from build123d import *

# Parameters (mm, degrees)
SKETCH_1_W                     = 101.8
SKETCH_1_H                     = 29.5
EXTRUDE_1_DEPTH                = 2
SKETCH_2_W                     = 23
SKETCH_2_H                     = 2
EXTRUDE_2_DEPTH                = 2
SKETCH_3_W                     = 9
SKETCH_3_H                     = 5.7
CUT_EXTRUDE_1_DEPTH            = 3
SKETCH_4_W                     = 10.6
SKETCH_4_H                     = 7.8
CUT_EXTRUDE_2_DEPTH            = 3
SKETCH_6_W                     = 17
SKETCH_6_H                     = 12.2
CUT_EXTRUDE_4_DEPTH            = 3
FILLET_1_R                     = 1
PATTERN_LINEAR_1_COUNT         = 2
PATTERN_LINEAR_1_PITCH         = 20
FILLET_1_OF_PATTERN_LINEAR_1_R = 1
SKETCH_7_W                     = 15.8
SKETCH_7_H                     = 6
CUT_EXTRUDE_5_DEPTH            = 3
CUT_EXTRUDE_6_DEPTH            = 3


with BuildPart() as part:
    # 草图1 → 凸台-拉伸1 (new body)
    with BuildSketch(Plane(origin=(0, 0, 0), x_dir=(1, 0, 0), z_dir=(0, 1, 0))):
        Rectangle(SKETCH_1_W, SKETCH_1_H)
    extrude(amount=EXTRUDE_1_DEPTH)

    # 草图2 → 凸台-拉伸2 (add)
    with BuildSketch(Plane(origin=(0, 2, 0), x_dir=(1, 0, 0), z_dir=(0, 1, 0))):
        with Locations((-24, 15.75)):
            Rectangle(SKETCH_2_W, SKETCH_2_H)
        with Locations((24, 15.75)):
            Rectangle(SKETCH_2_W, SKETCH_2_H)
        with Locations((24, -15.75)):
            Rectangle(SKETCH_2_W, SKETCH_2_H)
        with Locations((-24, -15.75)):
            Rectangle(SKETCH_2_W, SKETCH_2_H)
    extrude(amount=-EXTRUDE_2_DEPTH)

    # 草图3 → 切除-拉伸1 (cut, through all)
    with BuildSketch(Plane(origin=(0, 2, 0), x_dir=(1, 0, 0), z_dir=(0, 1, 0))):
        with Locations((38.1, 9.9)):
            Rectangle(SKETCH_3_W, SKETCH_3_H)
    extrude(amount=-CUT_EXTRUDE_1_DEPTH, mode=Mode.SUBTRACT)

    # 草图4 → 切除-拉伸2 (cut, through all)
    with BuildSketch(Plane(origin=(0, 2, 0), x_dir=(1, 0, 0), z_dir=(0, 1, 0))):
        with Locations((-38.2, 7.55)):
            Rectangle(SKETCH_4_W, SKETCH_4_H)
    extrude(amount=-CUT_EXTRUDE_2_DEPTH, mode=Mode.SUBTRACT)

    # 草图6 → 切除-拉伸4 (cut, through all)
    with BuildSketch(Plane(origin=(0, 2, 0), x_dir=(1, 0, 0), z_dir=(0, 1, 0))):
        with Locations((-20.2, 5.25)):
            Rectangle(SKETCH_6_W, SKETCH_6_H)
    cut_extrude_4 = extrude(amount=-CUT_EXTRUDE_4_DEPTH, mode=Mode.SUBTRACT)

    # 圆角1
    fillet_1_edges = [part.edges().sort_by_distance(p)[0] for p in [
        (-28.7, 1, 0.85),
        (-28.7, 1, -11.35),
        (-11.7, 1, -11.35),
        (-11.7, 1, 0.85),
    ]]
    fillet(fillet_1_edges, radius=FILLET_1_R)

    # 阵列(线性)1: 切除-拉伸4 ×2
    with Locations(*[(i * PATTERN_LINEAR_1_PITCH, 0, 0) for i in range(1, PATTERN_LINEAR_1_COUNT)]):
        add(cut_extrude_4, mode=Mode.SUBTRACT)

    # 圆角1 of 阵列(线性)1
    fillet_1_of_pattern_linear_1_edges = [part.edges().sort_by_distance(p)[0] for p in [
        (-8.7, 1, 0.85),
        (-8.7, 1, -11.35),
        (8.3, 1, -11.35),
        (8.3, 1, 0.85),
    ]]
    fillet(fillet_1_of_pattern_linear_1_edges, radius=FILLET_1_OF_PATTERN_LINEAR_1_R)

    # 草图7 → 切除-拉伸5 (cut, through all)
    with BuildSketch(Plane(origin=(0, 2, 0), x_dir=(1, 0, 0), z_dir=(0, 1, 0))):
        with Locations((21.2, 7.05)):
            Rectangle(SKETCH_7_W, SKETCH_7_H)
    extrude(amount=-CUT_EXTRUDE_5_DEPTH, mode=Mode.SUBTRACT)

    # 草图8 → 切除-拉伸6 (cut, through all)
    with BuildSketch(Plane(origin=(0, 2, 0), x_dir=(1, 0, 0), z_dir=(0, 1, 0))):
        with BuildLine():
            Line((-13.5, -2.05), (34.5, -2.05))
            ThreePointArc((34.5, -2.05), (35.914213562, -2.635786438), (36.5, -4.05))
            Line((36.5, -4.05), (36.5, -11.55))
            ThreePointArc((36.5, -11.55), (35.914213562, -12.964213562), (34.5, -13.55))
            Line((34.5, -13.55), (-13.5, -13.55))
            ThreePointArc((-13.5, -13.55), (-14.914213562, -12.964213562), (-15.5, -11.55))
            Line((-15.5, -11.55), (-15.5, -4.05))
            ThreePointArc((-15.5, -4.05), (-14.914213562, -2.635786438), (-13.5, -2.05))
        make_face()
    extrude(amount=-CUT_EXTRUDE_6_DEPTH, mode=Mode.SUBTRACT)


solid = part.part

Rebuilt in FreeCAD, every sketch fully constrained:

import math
import FreeCAD as App
import Part
import Sketcher

V = App.Vector
Q = App.Units.Quantity


def edges_at(feature, points):
    """Names of the edges that pass closest to the given points."""
    edges = feature.Shape.Edges
    near = lambda p: min(range(len(edges)), key=lambda i: edges[i].distToShape(Part.Vertex(*p))[0])
    return sorted({f"Edge{near(p) + 1}" for p in points})


def add_polygon(sketch, points):
    """Adds a closed chain of lines whose ends are joined by coincident constraints."""
    first, n = sketch.GeometryCount, len(points)
    for a, b in zip(points, points[1:] + points[:1]):
        sketch.addGeometry(Part.LineSegment(App.Vector(*a, 0), App.Vector(*b, 0)), False)
    for i in range(n):
        sketch.addConstraint(Sketcher.Constraint("Coincident", first + i, 2, first + (i + 1) % n, 1))

doc = App.newDocument("Part")
params = doc.addObject("Spreadsheet::Sheet", "Params")
for row, (alias, value) in enumerate([
    ("sketch1_width", "101.8 mm"),
    ("sketch1_height", "29.5 mm"),
    ("pad1_length", "2 mm"),
    ("sketch2_width", "23 mm"),
    ("sketch2_height", "2 mm"),
    ("pad2_length", "2 mm"),
    ("sketch3_width", "9 mm"),
    ("sketch3_height", "5.7 mm"),
    ("sketch4_width", "10.6 mm"),
    ("sketch4_height", "7.8 mm"),
    ("sketch5_width", "17 mm"),
    ("sketch5_height", "12.2 mm"),
    ("fillet_radius", "1 mm"),
    ("linearpattern_pitch", "20 mm"),
    ("fillet2_radius", "1 mm"),
    ("sketch6_height", "6 mm"),
    ("sketch6_width", "15.8 mm"),
    ("sketch7_radius", "2 mm"),
    ("sketch7_width", "48 mm"),
    ("sketch7_height", "7.5 mm"),
], start=1):
    params.set(f"A{row}", alias)
    params.set(f"B{row}", "=" + value)
    params.setAlias(f"B{row}", alias)

body = doc.addObject("PartDesign::Body", "Body")

sketch1 = body.newObject("Sketcher::SketchObject", "Sketch")
sketch1.AttachmentSupport = (doc.getObject("XZ_Plane"), [""])
sketch1.MapMode = "FlatFace"
add_polygon(sketch1, [(-51, -15), (-51, 15), (51, 15), (51, -15)])
sketch1.addConstraint([
    Sketcher.Constraint("Vertical", 0),
    Sketcher.Constraint("Horizontal", 1),
    Sketcher.Constraint("Vertical", 2),
    Sketcher.Constraint("Horizontal", 3),
    Sketcher.Constraint("Symmetric", 0, 2, 2, 2, -1, 1),
    Sketcher.Constraint("DistanceX", 1, 1, 1, 2, Q("101.8 mm")),
    Sketcher.Constraint("DistanceY", 0, 1, 0, 2, Q("29.5 mm")),
])
sketch1.setExpression("Constraints[9]", "Params.sketch1_width")
sketch1.setExpression("Constraints[10]", "Params.sketch1_height")
pad1 = body.newObject("PartDesign::Pad", "Pad")
pad1.Profile = sketch1
pad1.setExpression("Length", "Params.pad1_length")
pad1.Reversed = True

sketch2 = body.newObject("Sketcher::SketchObject", "Sketch001")
sketch2.AttachmentSupport = (doc.getObject("XZ_Plane"), [""])
sketch2.MapMode = "FlatFace"
sketch2.AttachmentOffset = App.Placement(V(0, 0, -2), App.Rotation())
add_polygon(sketch2, [(-35.5, -16.8), (-35.5, -14.8), (-12.5, -14.8), (-12.5, -16.8)])
add_polygon(sketch2, [(12.5, -16.8), (12.5, -14.8), (35.5, -14.8), (35.5, -16.8)])
add_polygon(sketch2, [(12.5, 14.8), (12.5, 16.8), (35.5, 16.8), (35.5, 14.8)])
add_polygon(sketch2, [(-35.5, 14.8), (-35.5, 16.8), (-12.5, 16.8), (-12.5, 14.8)])
sketch2.addConstraint([
    Sketcher.Constraint("Vertical", 0),
    Sketcher.Constraint("Horizontal", 1),
    Sketcher.Constraint("Vertical", 2),
    Sketcher.Constraint("Horizontal", 3),
    Sketcher.Constraint("Vertical", 4),
    Sketcher.Constraint("Horizontal", 5),
    Sketcher.Constraint("Vertical", 6),
    Sketcher.Constraint("Horizontal", 7),
    Sketcher.Constraint("Vertical", 8),
    Sketcher.Constraint("Horizontal", 9),
    Sketcher.Constraint("Vertical", 10),
    Sketcher.Constraint("Horizontal", 11),
    Sketcher.Constraint("Vertical", 12),
    Sketcher.Constraint("Horizontal", 13),
    Sketcher.Constraint("Vertical", 14),
    Sketcher.Constraint("Horizontal", 15),
    Sketcher.Constraint("Symmetric", 2, 2, 8, 2, -1, 1),
    Sketcher.Constraint("Symmetric", 0, 2, 10, 2, -1, 1),
    Sketcher.Constraint("Symmetric", 6, 2, 12, 2, -1, 1),
    Sketcher.Constraint("Symmetric", 4, 2, 14, 2, -1, 1),
    Sketcher.Constraint("Symmetric", 1, 2, 4, 2, -2),
    Sketcher.Constraint("Symmetric", 3, 2, 6, 2, -2),
    Sketcher.Constraint("DistanceX", 1, 1, 1, 2, Q("23 mm")),
    Sketcher.Constraint("DistanceY", 0, 1, 0, 2, Q("2 mm")),
    Sketcher.Constraint("DistanceX", 1, 2, 4, 2, Q("25 mm")),
    Sketcher.Constraint("DistanceY", 4, 2, 8, 2, Q("31.5 mm")),
])
sketch2.setExpression("Constraints[38]", "Params.sketch2_width")
sketch2.setExpression("Constraints[39]", "Params.sketch2_height")
pad2 = body.newObject("PartDesign::Pad", "Pad001")
pad2.Profile = sketch2
pad2.setExpression("Length", "Params.pad2_length")

sketch3 = body.newObject("Sketcher::SketchObject", "Sketch002")
sketch3.AttachmentSupport = (doc.getObject("XZ_Plane"), [""])
sketch3.MapMode = "FlatFace"
sketch3.AttachmentOffset = App.Placement(V(0, 0, -2), App.Rotation())
add_polygon(sketch3, [(34, -13), (34, -7), (43, -7), (43, -13)])
sketch3.addConstraint([
    Sketcher.Constraint("Vertical", 0),
    Sketcher.Constraint("Horizontal", 1),
    Sketcher.Constraint("Vertical", 2),
    Sketcher.Constraint("Horizontal", 3),
    Sketcher.Constraint("DistanceX", 1, 1, 1, 2, Q("9 mm")),
    Sketcher.Constraint("DistanceY", 0, 1, 0, 2, Q("5.7 mm")),
    Sketcher.Constraint("DistanceX", -1, 1, 0, 2, Q("33.6 mm")),
    Sketcher.Constraint("DistanceY", 0, 2, -1, 1, Q("7.05 mm")),
])
sketch3.setExpression("Constraints[8]", "Params.sketch3_width")
sketch3.setExpression("Constraints[9]", "Params.sketch3_height")
pocket1 = body.newObject("PartDesign::Pocket", "Pocket")
pocket1.Profile = sketch3
pocket1.Type = "ThroughAll"
pocket1.Reversed = True

sketch4 = body.newObject("Sketcher::SketchObject", "Sketch003")
sketch4.AttachmentSupport = (doc.getObject("XZ_Plane"), [""])
sketch4.MapMode = "FlatFace"
sketch4.AttachmentOffset = App.Placement(V(0, 0, -2), App.Rotation())
add_polygon(sketch4, [(-44, -11), (-44, -4), (-33, -4), (-33, -11)])
sketch4.addConstraint([
    Sketcher.Constraint("Vertical", 0),
    Sketcher.Constraint("Horizontal", 1),
    Sketcher.Constraint("Vertical", 2),
    Sketcher.Constraint("Horizontal", 3),
    Sketcher.Constraint("DistanceX", 1, 1, 1, 2, Q("10.6 mm")),
    Sketcher.Constraint("DistanceY", 0, 1, 0, 2, Q("7.8 mm")),
    Sketcher.Constraint("DistanceX", 0, 2, -1, 1, Q("43.5 mm")),
    Sketcher.Constraint("DistanceY", 0, 2, -1, 1, Q("3.65 mm")),
])
sketch4.setExpression("Constraints[8]", "Params.sketch4_width")
sketch4.setExpression("Constraints[9]", "Params.sketch4_height")
pocket2 = body.newObject("PartDesign::Pocket", "Pocket001")
pocket2.Profile = sketch4
pocket2.Type = "ThroughAll"
pocket2.Reversed = True

sketch5 = body.newObject("Sketcher::SketchObject", "Sketch004")
sketch5.AttachmentSupport = (doc.getObject("XZ_Plane"), [""])
sketch5.MapMode = "FlatFace"
sketch5.AttachmentOffset = App.Placement(V(0, 0, -2), App.Rotation())
add_polygon(sketch5, [(-29, -11), (-29, 1), (-12, 1), (-12, -11)])
sketch5.addConstraint([
    Sketcher.Constraint("Vertical", 0),
    Sketcher.Constraint("Horizontal", 1),
    Sketcher.Constraint("Vertical", 2),
    Sketcher.Constraint("Horizontal", 3),
    Sketcher.Constraint("DistanceX", 1, 1, 1, 2, Q("17 mm")),
    Sketcher.Constraint("DistanceY", 0, 1, 0, 2, Q("12.2 mm")),
    Sketcher.Constraint("DistanceX", 0, 2, -1, 1, Q("28.7 mm")),
    Sketcher.Constraint("DistanceY", -1, 1, 0, 2, Q("0.85 mm")),
])
sketch5.setExpression("Constraints[8]", "Params.sketch5_width")
sketch5.setExpression("Constraints[9]", "Params.sketch5_height")
pocket3 = body.newObject("PartDesign::Pocket", "Pocket002")
pocket3.Profile = sketch5
pocket3.Type = "ThroughAll"
pocket3.Reversed = True
doc.recompute()

fillet = body.newObject("PartDesign::Fillet", "Fillet")
fillet.Base = (pocket3, edges_at(pocket3, [
    (-28.7, 1, 0.85),
    (-28.7, 1, -11.35),
    (-11.7, 1, -11.35),
    (-11.7, 1, 0.85),
]))
fillet.setExpression("Radius", "Params.fillet_radius")
doc.recompute()

linearpattern = body.newObject("PartDesign::LinearPattern", "LinearPattern")
linearpattern.Originals = [pocket3]
linearpattern.Direction = (doc.getObject("X_Axis"), [""])
linearpattern.Mode = "offset"
linearpattern.setExpression("Offset", "Params.linearpattern_pitch")
linearpattern.Occurrences = 2
body.Tip = linearpattern
doc.recompute()

fillet2 = body.newObject("PartDesign::Fillet", "Fillet001")
fillet2.Base = (linearpattern, edges_at(linearpattern, [
    (-8.7, 1, 0.85),
    (-8.7, 1, -11.35),
    (8.3, 1, -11.35),
    (8.3, 1, 0.85),
]))
fillet2.setExpression("Radius", "Params.fillet2_radius")

sketch6 = body.newObject("Sketcher::SketchObject", "Sketch005")
sketch6.AttachmentSupport = (doc.getObject("XZ_Plane"), [""])
sketch6.MapMode = "FlatFace"
sketch6.AttachmentOffset = App.Placement(V(0, 0, -2), App.Rotation())
add_polygon(sketch6, [(13, -10), (13, -4), (29, -4), (29, -10)])
sketch6.addConstraint([
    Sketcher.Constraint("Vertical", 0),
    Sketcher.Constraint("Horizontal", 1),
    Sketcher.Constraint("Vertical", 2),
    Sketcher.Constraint("Horizontal", 3),
    Sketcher.Constraint("DistanceY", 0, 1, 0, 2, Q("6 mm")),
    Sketcher.Constraint("DistanceX", 1, 1, 1, 2, Q("15.8 mm")),
    Sketcher.Constraint("DistanceX", -1, 1, 0, 2, Q("13.3 mm")),
    Sketcher.Constraint("DistanceY", 0, 2, -1, 1, Q("4.05 mm")),
])
sketch6.setExpression("Constraints[8]", "Params.sketch6_height")
sketch6.setExpression("Constraints[9]", "Params.sketch6_width")
pocket4 = body.newObject("PartDesign::Pocket", "Pocket003")
pocket4.Profile = sketch6
pocket4.Type = "ThroughAll"
pocket4.Reversed = True

sketch7 = body.newObject("Sketcher::SketchObject", "Sketch006")
sketch7.AttachmentSupport = (doc.getObject("XZ_Plane"), [""])
sketch7.MapMode = "FlatFace"
sketch7.AttachmentOffset = App.Placement(V(0, 0, -2), App.Rotation())
sketch7.addGeometry([
    Part.LineSegment(V(34.5, 2, 0), V(-13.5, 2, 0)),
    Part.ArcOfCircle(Part.Circle(V(-13.5, 4.1, 0), V(0, 0, 1), 2), math.radians(-180), math.radians(-90)),
    Part.LineSegment(V(-15.5, 4, 0), V(-15.5, 11.6, 0)),
    Part.ArcOfCircle(Part.Circle(V(-13.5, 11.5, 0), V(0, 0, 1), 2), math.radians(90), math.radians(180)),
    Part.LineSegment(V(-13.5, 13.6, 0), V(34.5, 13.6, 0)),
    Part.ArcOfCircle(Part.Circle(V(34.5, 11.5, 0), V(0, 0, 1), 2), math.radians(0), math.radians(90)),
    Part.LineSegment(V(36.5, 11.6, 0), V(36.5, 4, 0)),
    Part.ArcOfCircle(Part.Circle(V(34.5, 4.1, 0), V(0, 0, 1), 2), math.radians(-90), math.radians(0)),
], False)
sketch7.addConstraint([
    Sketcher.Constraint("Tangent", 0, 2, 1, 2),
    Sketcher.Constraint("Tangent", 1, 1, 2, 1),
    Sketcher.Constraint("Tangent", 2, 2, 3, 2),
    Sketcher.Constraint("Tangent", 3, 1, 4, 1),
    Sketcher.Constraint("Tangent", 4, 2, 5, 2),
    Sketcher.Constraint("Tangent", 5, 1, 6, 1),
    Sketcher.Constraint("Tangent", 6, 2, 7, 2),
    Sketcher.Constraint("Tangent", 7, 1, 0, 1),
    Sketcher.Constraint("Horizontal", 0),
    Sketcher.Constraint("Vertical", 2),
    Sketcher.Constraint("Horizontal", 4),
    Sketcher.Constraint("Vertical", 6),
    Sketcher.Constraint("Equal", 1, 3),
    Sketcher.Constraint("Equal", 3, 5),
    Sketcher.Constraint("Equal", 5, 7),
    Sketcher.Constraint("Radius", 1, Q("2 mm")),
    Sketcher.Constraint("DistanceX", 0, 2, 0, 1, Q("48 mm")),
    Sketcher.Constraint("DistanceY", 2, 1, 2, 2, Q("7.5 mm")),
    Sketcher.Constraint("DistanceX", 1, 3, -1, 1, Q("13.5 mm")),
    Sketcher.Constraint("DistanceY", -1, 1, 1, 3, Q("4.05 mm")),
])
sketch7.setExpression("Constraints[15]", "Params.sketch7_radius")
sketch7.setExpression("Constraints[16]", "Params.sketch7_width")
sketch7.setExpression("Constraints[17]", "Params.sketch7_height")
pocket5 = body.newObject("PartDesign::Pocket", "Pocket004")
pocket5.Profile = sketch7
pocket5.Type = "ThroughAll"
pocket5.Reversed = True

doc.recompute()
